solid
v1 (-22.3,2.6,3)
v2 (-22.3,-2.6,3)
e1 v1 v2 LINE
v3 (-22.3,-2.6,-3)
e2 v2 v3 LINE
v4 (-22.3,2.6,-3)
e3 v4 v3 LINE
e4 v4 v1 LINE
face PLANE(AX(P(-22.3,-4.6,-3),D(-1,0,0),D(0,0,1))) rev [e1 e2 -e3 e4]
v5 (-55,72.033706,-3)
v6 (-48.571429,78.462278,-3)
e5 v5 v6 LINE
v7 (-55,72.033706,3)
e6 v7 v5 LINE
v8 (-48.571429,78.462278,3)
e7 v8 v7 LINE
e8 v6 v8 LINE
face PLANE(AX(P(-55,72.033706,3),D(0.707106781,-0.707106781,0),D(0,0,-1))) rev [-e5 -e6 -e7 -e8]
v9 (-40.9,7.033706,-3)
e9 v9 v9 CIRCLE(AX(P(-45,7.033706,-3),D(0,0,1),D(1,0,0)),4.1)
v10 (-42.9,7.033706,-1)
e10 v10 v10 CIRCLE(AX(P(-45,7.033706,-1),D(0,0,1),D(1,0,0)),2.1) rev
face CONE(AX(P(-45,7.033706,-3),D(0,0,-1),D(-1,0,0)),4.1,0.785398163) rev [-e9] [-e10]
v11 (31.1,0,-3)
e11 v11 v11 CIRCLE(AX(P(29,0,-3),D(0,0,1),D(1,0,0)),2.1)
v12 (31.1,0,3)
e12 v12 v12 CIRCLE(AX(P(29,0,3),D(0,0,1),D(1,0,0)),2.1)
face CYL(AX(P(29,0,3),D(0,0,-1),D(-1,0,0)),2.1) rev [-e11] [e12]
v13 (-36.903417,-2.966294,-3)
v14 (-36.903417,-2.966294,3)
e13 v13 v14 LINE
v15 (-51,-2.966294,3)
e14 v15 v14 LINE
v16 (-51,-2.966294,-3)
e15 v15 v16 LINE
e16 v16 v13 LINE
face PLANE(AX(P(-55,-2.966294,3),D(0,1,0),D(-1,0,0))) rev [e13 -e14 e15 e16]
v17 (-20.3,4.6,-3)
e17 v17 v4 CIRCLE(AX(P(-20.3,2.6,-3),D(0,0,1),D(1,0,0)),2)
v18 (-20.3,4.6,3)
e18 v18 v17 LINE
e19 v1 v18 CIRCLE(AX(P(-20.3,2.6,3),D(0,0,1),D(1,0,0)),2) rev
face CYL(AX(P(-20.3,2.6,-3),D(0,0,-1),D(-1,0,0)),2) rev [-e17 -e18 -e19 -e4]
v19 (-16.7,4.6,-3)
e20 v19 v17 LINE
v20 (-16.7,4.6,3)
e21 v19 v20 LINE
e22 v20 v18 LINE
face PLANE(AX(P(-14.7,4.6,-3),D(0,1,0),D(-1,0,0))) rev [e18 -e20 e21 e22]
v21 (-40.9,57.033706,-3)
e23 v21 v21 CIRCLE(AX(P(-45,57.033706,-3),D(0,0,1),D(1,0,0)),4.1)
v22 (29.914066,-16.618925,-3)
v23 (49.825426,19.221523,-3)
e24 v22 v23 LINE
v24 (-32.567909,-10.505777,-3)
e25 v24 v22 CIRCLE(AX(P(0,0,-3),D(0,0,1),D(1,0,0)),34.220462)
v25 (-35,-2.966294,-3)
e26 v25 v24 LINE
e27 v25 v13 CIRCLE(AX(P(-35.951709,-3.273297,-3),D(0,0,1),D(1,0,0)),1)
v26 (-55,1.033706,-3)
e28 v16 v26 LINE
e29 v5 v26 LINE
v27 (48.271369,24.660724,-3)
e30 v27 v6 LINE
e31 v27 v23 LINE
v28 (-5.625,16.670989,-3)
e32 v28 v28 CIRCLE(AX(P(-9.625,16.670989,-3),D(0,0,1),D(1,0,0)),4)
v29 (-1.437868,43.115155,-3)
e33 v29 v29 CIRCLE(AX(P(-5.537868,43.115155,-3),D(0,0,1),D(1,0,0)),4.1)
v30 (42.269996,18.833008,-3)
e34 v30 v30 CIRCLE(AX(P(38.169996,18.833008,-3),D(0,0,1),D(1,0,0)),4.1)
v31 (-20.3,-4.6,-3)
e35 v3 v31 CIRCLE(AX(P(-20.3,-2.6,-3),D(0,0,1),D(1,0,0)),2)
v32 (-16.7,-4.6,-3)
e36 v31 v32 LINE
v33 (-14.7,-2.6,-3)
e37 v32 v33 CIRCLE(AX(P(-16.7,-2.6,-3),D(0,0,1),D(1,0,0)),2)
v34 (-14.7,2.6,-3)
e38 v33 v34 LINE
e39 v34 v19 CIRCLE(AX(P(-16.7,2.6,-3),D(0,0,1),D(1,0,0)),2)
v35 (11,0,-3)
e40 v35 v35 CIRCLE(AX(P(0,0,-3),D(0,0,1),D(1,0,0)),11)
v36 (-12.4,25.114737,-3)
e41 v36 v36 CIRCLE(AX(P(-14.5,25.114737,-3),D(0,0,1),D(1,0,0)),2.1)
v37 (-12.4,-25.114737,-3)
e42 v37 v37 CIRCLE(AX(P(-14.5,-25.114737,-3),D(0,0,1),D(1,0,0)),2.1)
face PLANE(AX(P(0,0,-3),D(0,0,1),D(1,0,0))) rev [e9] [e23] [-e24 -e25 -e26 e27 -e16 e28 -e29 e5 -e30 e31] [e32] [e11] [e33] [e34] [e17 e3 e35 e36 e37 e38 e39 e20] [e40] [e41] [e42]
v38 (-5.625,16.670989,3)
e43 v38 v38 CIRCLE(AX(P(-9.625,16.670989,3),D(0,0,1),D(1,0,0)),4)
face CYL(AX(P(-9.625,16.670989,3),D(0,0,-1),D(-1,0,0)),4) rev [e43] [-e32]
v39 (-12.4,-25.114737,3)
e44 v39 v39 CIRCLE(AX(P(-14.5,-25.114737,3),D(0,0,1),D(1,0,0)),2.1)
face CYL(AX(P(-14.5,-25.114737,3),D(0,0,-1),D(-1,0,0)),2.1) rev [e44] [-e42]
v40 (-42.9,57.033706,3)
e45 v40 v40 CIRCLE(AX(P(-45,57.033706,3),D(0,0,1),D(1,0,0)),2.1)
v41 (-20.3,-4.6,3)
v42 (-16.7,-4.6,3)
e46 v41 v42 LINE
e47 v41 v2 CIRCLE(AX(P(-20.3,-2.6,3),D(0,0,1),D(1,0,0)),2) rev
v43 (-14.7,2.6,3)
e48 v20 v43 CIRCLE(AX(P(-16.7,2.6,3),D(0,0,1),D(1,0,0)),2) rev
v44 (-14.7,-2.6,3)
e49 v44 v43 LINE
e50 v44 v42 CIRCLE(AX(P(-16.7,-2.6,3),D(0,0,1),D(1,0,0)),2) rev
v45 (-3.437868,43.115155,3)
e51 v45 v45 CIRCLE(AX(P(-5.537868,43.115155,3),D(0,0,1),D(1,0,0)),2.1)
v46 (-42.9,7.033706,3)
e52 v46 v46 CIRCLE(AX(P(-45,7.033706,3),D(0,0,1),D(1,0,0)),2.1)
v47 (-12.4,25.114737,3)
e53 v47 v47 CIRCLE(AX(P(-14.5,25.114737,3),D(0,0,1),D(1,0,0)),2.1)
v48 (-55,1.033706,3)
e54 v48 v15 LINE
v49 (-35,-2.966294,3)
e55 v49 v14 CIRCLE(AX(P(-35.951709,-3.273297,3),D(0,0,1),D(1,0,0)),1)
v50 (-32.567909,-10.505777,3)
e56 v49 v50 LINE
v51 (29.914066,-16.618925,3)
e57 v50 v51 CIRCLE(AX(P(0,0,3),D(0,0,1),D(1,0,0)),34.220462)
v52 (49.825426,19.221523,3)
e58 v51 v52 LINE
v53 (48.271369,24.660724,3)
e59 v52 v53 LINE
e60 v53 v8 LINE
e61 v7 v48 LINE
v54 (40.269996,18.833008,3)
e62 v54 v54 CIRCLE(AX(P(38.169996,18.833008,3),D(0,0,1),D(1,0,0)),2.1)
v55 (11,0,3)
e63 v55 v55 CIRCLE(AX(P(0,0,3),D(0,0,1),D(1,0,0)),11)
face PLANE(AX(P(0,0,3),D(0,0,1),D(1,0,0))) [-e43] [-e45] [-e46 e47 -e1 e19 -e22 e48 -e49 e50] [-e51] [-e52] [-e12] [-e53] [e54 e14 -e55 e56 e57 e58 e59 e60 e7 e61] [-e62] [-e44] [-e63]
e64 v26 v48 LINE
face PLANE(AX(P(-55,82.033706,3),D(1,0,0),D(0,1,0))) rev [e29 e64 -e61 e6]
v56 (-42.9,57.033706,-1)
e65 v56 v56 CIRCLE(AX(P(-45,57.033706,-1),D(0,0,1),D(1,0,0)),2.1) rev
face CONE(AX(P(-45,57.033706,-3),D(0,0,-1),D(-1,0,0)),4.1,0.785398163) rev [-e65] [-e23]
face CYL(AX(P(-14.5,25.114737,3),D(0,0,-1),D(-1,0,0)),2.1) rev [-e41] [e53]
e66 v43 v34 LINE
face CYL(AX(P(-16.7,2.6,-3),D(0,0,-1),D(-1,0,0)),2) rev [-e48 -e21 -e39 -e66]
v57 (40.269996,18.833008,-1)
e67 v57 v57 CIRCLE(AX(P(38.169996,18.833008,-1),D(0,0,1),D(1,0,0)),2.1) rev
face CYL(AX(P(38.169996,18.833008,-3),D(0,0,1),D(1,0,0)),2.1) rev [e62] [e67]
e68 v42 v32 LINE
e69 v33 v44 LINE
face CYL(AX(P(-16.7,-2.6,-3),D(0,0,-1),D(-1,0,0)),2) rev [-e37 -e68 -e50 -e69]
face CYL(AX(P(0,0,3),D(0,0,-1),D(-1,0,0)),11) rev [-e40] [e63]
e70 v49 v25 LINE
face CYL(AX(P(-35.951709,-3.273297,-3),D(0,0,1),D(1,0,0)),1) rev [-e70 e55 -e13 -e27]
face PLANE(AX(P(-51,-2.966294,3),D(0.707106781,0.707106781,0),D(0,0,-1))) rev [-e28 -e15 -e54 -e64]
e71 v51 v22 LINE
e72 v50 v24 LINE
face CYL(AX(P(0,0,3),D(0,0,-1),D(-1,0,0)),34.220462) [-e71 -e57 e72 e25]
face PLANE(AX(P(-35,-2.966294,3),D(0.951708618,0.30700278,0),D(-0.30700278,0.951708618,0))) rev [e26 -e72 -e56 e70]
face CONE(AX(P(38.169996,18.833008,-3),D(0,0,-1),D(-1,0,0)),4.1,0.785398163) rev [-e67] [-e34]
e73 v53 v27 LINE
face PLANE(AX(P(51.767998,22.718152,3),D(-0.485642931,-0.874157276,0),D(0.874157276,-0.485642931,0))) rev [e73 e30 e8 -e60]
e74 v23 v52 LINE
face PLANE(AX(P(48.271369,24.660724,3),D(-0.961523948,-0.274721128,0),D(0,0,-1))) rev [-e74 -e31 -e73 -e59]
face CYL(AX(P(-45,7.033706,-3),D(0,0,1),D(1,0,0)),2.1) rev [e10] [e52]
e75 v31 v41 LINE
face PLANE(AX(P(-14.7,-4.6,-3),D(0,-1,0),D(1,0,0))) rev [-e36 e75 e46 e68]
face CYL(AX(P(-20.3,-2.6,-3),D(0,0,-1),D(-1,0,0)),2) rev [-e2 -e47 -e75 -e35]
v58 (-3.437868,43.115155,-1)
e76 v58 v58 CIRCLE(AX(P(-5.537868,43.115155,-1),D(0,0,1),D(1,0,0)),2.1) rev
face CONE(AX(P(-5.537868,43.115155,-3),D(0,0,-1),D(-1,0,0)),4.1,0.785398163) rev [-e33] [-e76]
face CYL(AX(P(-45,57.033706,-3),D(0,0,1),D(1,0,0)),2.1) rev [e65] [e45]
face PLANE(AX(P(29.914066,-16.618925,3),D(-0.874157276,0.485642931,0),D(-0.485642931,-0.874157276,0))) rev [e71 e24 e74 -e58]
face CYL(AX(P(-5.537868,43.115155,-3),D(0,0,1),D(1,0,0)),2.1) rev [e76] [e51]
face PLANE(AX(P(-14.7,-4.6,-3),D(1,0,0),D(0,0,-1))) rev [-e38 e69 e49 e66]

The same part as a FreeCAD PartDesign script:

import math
import FreeCAD as App
import Part
import Sketcher


def edges_at(feature, points):
    """Names of the edges that pass closest to the given points."""
    edges = feature.Shape.Edges
    near = lambda p: min(range(len(edges)), key=lambda i: edges[i].distToShape(Part.Vertex(*p))[0])
    return sorted({f"Edge{near(p) + 1}" for p in points})

doc = App.newDocument("Part")
body = doc.addObject("PartDesign::Body", "Body")

# Sketch on XY plane
sketch1 = body.newObject("Sketcher::SketchObject", "Sketch")
sketch1.AttachmentSupport = (doc.getObject("XY_Plane"), [""])
sketch1.MapMode = "FlatFace"
sketch1.addGeometry([
    Part.LineSegment(App.Vector(-55, 82, 0), App.Vector(-55, -3, 0)),  # 0
    Part.LineSegment(App.Vector(-55, -3, 0), App.Vector(-35, -3, 0)),  # 1
    Part.LineSegment(App.Vector(-35, -3, 0), App.Vector(-32.6, -10.5, 0)),  # 2
    Part.ArcOfCircle(Part.Circle(App.Vector(0, 0, 0), App.Vector(0, 0, 1), 34.2), math.radians(-162), math.radians(-29)),  # 3
    Part.LineSegment(App.Vector(29.9, -16.6, 0), App.Vector(51.8, 22.7, 0)),  # 4
    Part.LineSegment(App.Vector(51.8, 22.7, 0), App.Vector(-55, 82, 0)),  # 5
    Part.Circle(App.Vector(-14.5, -25.1, 0), App.Vector(0, 0, 1), 2.1),  # 6
    Part.Circle(App.Vector(0, 0, 0), App.Vector(0, 0, 1), 11),  # 7
    Part.Circle(App.Vector(-9.6, 16.7, 0), App.Vector(0, 0, 1), 4),  # 8
    Part.Circle(App.Vector(-14.5, 25.1, 0), App.Vector(0, 0, 1), 2.1),  # 9
    Part.Circle(App.Vector(29, 0, 0), App.Vector(0, 0, 1), 2.1),  # 10
], False)
sketch1.addConstraint([
    Sketcher.Constraint("Coincident", 0, 2, 1, 1),
    Sketcher.Constraint("Coincident", 1, 2, 2, 1),
    Sketcher.Constraint("Tangent", 2, 2, 3, 1),
    Sketcher.Constraint("Tangent", 3, 2, 4, 1),
    Sketcher.Constraint("Coincident", 4, 2, 5, 1),
    Sketcher.Constraint("Coincident", 5, 2, 0, 1),
    Sketcher.Constraint("Vertical", 0),
    Sketcher.Constraint("Horizontal", 1),
    Sketcher.Constraint("Coincident", 3, 3, -1, 1),
    Sketcher.Constraint("Coincident", 7, 3, -1, 1),
    Sketcher.Constraint("Equal", 6, 9),
    Sketcher.Constraint("Equal", 9, 10),
    Sketcher.Constraint("Symmetric", 6, 3, 9, 3, -1),
    Sketcher.Constraint("PointOnObject", 10, 3, -1),
    Sketcher.Constraint("Perpendicular", 4, 5),
    Sketcher.Constraint("Diameter", 7, 22.0),
    Sketcher.Constraint("Diameter", 8, 8.0),
    Sketcher.Constraint("Diameter", 6, 4.2),
    Sketcher.Constraint("DistanceX", 1, 1, 1, 2, 20.0),
    Sketcher.Constraint("DistanceY", 0, 2, 0, 1, 85.0),
    Sketcher.Constraint("Distance", 4, 45.0),
    Sketcher.Constraint("DistanceX", -1, 1, 10, 3, 29.0),
    Sketcher.Constraint("DistanceX", 0, 2, -1, 1, 55.0),
    Sketcher.Constraint("DistanceX", 6, 3, -1, 1, 14.5),
    Sketcher.Constraint("DistanceX", 8, 3, -1, 1, 9.625),
    Sketcher.Constraint("Radius", 3, 34.220462),
    Sketcher.Constraint("Distance", 5, 122.138202),
    Sketcher.Constraint("DistanceY", -1, 1, 8, 3, 16.670989),
    Sketcher.Constraint("DistanceY", 0, 2, 9, 3, 28.08103),
])
pad1 = body.newObject("PartDesign::Pad", "Pad")
pad1.Profile = sketch1
pad1.Length = 6
pad1.Midplane = True

# Sketch on XY plane
sketch2 = body.newObject("Sketcher::SketchObject", "Sketch001")
sketch2.AttachmentSupport = (doc.getObject("XY_Plane"), [""])
sketch2.MapMode = "FlatFace"
sketch2.AttachmentOffset = App.Placement(App.Vector(0, 0, 3), App.Rotation())
sketch2.addGeometry([
    Part.Circle(App.Vector(-36, -3.3, 0), App.Vector(0, 0, 1), 1),
    Part.Circle(App.Vector(-45, 7, 0), App.Vector(0, 0, 1), 2.1),
    Part.Circle(App.Vector(-45, 57, 0), App.Vector(0, 0, 1), 2.1),
], False)
sketch2.addConstraint([
    Sketcher.Constraint("Equal", 1, 2),
    Sketcher.Constraint("Vertical", 1, 3, 2, 3),
    Sketcher.Constraint("Diameter", 0, 2.0),
    Sketcher.Constraint("Diameter", 1, 4.2),
    Sketcher.Constraint("DistanceX", 1, 3, -1, 1, 45.0),
    Sketcher.Constraint("DistanceY", 1, 3, 2, 3, 50.0),
    Sketcher.Constraint("DistanceX", 0, 3, -1, 1, 35.951709),
    Sketcher.Constraint("DistanceY", 0, 3, -1, 1, 3.273297),
    Sketcher.Constraint("DistanceY", -1, 1, 1, 3, 7.033706),
])
pocket1 = body.newObject("PartDesign::Pocket", "Pocket")
pocket1.Profile = sketch2
pocket1.Type = "ThroughAll"
doc.recompute()

chamfer = body.newObject("PartDesign::Chamfer", "Chamfer")
chamfer.Base = (pocket1, edges_at(pocket1, [(51.768, 22.718, 0), (-55, -2.966, 0)]))
chamfer.Size = 4
doc.recompute()

chamfer2 = body.newObject("PartDesign::Chamfer", "Chamfer001")
chamfer2.Base = (chamfer, edges_at(chamfer, [(-55, 82.034, 0)]))
chamfer2.ChamferType = "Two distances"
chamfer2.Size = 10
chamfer2.Size2 = 7.354022

# Sketch on XY plane
sketch3 = body.newObject("Sketcher::SketchObject", "Sketch002")
sketch3.AttachmentSupport = (doc.getObject("XY_Plane"), [""])
sketch3.MapMode = "FlatFace"
sketch3.AttachmentOffset = App.Placement(App.Vector(0, 0, 3), App.Rotation())
sketch3.addGeometry([
    Part.LineSegment(App.Vector(-22, 5, 0), App.Vector(-22, -5, 0)),
    Part.LineSegment(App.Vector(-22, -5, 0), App.Vector(-15, -5, 0)),
    Part.LineSegment(App.Vector(-15, -5, 0), App.Vector(-15, 5, 0)),
    Part.LineSegment(App.Vector(-15, 5, 0), App.Vector(-22, 5, 0)),
], False)
sketch3.addConstraint([
    Sketcher.Constraint("Coincident", 0, 2, 1, 1),
    Sketcher.Constraint("Coincident", 1, 2, 2, 1),
    Sketcher.Constraint("Coincident", 2, 2, 3, 1),
    Sketcher.Constraint("Coincident", 3, 2, 0, 1),
    Sketcher.Constraint("Vertical", 0),
    Sketcher.Constraint("Horizontal", 1),
    Sketcher.Constraint("Vertical", 2),
    Sketcher.Constraint("Horizontal", 3),
    Sketcher.Constraint("DistanceX", 1, 1, 1, 2, 7.6),
    Sketcher.Constraint("DistanceY", 0, 2, 0, 1, 9.2),
    Sketcher.Constraint("DistanceX", 0, 2, -1, 1, 22.3),
    Sketcher.Constraint("DistanceY", 0, 2, -1, 1, 4.6),
])
pocket2 = body.newObject("PartDesign::Pocket", "Pocket001")
pocket2.Profile = sketch3
pocket2.Type = "ThroughAll"
doc.recompute()

fillet = body.newObject("PartDesign::Fillet", "Fillet")
fillet.Base = (pocket2, edges_at(pocket2, [
    (-14.7, 4.6, 0),
    (-14.7, -4.6, 0),
    (-22.3, -4.6, 0),
    (-22.3, 4.6, 0),
]))
fillet.Radius = 2

# Sketch on XY plane
sketch4 = body.newObject("Sketcher::SketchObject", "Sketch003")
sketch4.AttachmentSupport = (doc.getObject("XY_Plane"), [""])
sketch4.MapMode = "FlatFace"
sketch4.AttachmentOffset = App.Placement(App.Vector(0, 0, 3), App.Rotation())
sketch4.addGeometry([
    Part.Circle(App.Vector(-5.5, 43.1, 0), App.Vector(0, 0, 1), 2.1),
    Part.Circle(App.Vector(38.2, 18.8, 0), App.Vector(0, 0, 1), 2.1),
], False)
sketch4.addConstraint([
    Sketcher.Constraint("Equal", 0, 1),
    Sketcher.Constraint("Diameter", 0, 4.2),
    Sketcher.Constraint("DistanceX", 0, 3, -1, 1, 5.537868),
    Sketcher.Constraint("DistanceY", -1, 1, 1, 3, 18.833008),
    Sketcher.Constraint("DistanceY", -1, 1, 0, 3, 43.115155),
    Sketcher.Constraint("DistanceX", -1, 1, 1, 3, 38.169996),
])
pocket3 = body.newObject("PartDesign::Pocket", "Pocket002")
pocket3.Profile = sketch4
pocket3.Type = "ThroughAll"
doc.recompute()

chamfer3 = body.newObject("PartDesign::Chamfer", "Chamfer002")
chamfer3.Base = (pocket3, edges_at(pocket3, [
    (-7.638, 43.115, -3),
    (36.07, 18.833, -3),
    (-47.1, 7.034, -3),
    (-47.1, 57.034, -3),
]))
chamfer3.Size = 2

doc.recompute()
